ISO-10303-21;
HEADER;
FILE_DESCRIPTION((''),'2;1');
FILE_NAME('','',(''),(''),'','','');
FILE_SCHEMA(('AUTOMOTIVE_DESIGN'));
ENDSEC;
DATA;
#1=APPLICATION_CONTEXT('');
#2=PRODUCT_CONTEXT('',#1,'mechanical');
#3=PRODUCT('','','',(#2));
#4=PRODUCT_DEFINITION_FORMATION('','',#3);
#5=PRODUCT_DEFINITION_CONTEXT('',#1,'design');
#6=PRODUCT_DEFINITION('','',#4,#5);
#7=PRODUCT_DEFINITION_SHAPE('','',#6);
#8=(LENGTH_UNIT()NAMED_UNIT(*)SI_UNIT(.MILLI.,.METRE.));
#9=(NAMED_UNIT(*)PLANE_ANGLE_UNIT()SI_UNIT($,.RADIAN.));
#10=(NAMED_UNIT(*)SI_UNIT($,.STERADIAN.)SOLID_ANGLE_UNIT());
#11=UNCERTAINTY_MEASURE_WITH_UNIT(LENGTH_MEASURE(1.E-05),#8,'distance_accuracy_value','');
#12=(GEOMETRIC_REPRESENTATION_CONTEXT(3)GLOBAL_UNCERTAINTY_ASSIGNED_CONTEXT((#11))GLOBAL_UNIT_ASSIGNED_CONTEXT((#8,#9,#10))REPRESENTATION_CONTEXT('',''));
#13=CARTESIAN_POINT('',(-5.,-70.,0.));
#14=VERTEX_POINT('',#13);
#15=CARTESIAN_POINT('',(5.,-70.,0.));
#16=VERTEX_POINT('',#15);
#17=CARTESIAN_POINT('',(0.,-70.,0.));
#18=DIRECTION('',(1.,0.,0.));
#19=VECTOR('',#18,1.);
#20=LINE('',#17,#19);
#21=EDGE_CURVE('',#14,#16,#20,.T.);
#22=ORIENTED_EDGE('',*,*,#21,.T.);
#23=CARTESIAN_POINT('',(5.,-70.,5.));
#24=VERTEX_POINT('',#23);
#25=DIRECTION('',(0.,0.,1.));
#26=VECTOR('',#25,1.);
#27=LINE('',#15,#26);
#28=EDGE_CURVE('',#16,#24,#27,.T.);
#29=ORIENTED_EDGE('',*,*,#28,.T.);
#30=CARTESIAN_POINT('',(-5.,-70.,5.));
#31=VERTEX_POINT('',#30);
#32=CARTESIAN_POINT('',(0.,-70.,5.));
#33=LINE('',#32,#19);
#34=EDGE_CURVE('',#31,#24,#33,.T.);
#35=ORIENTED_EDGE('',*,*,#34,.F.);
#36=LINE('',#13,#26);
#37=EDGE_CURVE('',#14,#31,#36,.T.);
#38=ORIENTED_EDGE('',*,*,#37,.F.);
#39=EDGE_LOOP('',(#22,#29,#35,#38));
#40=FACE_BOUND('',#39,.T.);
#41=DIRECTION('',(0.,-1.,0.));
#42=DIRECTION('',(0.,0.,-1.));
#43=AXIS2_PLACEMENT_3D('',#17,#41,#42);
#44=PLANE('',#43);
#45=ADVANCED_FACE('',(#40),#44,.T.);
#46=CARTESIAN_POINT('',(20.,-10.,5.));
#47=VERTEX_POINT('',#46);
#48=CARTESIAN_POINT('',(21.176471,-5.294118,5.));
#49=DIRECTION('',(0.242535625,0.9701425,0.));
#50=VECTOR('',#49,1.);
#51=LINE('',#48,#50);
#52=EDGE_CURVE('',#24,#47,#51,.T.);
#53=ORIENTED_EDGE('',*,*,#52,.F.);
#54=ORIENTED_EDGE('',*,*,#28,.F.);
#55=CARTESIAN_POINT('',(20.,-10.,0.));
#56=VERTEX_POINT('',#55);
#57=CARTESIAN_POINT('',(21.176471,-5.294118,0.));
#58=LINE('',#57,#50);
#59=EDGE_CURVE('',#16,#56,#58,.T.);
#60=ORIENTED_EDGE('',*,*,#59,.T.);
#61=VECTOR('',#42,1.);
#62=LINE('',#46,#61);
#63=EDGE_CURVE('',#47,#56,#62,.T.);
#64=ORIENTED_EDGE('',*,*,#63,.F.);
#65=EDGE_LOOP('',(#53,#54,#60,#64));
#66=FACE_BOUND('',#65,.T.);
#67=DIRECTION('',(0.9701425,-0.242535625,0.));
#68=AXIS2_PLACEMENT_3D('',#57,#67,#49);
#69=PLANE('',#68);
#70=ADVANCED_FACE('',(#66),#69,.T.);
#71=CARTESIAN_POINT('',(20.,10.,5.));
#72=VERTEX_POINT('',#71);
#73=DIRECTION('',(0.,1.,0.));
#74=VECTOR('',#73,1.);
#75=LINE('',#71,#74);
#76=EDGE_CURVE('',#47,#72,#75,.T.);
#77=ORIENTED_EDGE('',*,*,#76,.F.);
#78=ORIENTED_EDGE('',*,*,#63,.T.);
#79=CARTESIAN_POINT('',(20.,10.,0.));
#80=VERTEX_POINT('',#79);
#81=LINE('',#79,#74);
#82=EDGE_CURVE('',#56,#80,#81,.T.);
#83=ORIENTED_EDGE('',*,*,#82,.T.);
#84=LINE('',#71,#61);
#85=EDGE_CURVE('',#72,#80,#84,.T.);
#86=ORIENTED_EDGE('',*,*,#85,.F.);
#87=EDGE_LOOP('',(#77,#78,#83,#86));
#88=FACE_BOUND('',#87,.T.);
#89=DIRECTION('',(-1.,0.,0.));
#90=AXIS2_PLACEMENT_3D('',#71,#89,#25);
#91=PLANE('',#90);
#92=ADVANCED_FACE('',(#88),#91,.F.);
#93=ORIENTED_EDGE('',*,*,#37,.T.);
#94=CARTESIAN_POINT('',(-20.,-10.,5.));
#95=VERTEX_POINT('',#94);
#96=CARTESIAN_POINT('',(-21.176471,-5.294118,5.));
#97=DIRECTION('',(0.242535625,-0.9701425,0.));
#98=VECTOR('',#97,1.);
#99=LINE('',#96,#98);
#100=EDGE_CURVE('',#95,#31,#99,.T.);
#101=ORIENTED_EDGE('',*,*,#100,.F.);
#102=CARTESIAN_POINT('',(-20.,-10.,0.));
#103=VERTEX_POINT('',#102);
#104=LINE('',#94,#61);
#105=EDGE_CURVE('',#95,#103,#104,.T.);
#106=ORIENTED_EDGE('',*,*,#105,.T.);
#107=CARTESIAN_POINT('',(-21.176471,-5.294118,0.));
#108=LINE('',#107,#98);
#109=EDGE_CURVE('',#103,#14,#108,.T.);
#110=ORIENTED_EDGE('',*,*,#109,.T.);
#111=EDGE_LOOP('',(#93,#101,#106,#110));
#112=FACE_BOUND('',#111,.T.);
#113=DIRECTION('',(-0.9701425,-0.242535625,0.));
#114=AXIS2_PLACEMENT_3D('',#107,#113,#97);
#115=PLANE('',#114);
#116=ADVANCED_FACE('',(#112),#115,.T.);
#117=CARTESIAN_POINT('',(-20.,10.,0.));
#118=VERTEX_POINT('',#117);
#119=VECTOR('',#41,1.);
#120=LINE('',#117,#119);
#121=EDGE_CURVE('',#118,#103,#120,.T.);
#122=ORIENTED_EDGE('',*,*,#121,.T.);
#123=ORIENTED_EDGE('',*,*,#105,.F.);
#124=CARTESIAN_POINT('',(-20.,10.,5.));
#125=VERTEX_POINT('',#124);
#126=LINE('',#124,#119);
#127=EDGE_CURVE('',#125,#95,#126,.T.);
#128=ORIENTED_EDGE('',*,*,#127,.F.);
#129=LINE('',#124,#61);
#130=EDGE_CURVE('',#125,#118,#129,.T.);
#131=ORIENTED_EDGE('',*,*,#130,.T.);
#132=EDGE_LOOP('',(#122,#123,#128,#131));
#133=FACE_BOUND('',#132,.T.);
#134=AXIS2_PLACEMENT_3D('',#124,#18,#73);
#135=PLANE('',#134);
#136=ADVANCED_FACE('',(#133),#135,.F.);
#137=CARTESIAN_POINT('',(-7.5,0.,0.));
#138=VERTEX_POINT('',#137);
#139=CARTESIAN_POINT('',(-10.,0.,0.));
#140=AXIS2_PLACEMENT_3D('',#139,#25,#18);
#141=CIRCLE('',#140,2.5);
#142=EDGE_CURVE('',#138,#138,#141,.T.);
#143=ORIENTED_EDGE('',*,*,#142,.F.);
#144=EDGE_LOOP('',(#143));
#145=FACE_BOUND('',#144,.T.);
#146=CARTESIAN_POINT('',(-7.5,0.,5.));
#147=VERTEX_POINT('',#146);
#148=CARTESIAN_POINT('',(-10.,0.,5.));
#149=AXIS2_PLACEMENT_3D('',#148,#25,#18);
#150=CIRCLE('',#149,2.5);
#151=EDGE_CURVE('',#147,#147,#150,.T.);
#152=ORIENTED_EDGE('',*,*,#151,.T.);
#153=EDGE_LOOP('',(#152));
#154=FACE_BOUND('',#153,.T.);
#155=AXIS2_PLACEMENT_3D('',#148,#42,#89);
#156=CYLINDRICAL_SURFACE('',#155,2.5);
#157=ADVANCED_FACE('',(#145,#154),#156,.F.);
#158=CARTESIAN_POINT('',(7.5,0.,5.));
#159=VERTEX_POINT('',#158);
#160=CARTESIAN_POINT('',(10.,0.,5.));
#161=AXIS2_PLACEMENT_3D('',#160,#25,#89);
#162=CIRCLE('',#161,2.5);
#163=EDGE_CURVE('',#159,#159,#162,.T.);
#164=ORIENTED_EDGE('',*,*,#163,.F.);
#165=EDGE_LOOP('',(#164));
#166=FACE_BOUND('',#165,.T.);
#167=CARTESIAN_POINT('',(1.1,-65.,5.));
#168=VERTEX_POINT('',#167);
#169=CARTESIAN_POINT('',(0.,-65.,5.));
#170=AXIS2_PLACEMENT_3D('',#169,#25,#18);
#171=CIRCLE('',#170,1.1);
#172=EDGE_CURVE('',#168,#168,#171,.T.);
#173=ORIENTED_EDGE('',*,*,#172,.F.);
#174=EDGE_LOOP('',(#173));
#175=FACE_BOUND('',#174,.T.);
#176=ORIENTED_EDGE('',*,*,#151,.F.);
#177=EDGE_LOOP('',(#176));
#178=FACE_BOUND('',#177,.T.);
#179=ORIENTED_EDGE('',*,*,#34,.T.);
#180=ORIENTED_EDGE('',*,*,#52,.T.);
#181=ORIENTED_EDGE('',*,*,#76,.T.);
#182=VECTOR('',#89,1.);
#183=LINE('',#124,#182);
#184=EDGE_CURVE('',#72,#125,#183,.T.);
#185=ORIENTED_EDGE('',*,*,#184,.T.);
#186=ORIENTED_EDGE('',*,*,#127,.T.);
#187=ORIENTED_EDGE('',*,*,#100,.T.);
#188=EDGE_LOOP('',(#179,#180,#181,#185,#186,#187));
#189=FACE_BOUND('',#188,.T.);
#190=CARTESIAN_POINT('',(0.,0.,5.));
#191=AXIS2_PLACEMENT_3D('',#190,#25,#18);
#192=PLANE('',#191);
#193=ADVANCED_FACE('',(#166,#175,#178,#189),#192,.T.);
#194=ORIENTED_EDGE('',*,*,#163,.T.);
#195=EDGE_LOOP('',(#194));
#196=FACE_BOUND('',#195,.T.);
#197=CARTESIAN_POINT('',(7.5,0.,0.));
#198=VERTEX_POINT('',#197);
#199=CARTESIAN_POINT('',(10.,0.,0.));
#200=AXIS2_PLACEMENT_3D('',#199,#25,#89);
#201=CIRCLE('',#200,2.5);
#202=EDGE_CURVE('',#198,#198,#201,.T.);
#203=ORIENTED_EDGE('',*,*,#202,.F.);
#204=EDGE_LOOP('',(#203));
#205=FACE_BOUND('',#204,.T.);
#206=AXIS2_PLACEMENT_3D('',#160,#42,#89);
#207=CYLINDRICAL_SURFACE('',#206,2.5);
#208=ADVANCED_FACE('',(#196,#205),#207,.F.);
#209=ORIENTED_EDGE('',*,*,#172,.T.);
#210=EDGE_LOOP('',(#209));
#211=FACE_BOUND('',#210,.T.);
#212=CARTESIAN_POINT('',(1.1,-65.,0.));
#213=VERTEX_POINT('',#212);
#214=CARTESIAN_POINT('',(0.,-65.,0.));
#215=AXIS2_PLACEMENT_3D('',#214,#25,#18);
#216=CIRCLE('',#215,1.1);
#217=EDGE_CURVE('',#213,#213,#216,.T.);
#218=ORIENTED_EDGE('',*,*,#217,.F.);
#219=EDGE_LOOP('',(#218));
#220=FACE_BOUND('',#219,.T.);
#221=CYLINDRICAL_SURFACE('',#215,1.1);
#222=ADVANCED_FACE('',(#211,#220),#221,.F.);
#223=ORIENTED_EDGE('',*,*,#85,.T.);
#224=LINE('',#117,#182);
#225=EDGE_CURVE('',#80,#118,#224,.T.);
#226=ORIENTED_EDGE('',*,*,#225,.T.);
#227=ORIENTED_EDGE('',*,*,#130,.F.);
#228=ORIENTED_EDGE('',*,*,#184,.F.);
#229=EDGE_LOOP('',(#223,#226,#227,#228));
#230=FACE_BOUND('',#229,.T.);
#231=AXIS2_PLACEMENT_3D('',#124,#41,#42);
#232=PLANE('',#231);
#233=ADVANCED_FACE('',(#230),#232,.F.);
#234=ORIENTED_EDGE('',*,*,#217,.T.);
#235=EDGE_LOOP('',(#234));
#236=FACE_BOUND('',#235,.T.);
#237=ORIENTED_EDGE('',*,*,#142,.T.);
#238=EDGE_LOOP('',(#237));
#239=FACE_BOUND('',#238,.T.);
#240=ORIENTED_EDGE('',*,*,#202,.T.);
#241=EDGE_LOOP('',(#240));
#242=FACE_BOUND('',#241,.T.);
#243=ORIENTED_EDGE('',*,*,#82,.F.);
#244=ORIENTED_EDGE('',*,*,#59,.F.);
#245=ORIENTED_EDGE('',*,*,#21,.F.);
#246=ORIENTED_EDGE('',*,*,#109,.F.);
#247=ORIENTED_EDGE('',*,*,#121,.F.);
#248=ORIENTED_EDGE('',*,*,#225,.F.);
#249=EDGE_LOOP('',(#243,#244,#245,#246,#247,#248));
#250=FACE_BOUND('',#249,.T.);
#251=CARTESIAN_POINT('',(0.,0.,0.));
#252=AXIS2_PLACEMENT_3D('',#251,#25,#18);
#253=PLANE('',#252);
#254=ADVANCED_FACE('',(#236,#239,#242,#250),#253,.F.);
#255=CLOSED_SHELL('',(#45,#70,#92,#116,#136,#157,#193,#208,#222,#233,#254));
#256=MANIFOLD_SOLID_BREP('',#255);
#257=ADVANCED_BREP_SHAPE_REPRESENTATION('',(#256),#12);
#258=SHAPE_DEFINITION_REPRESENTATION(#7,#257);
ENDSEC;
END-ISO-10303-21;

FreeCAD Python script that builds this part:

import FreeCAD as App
import Part
import Sketcher
from FreeCAD import Vector
Q = App.Units.Quantity

doc = App.newDocument("Part")
body = doc.addObject("PartDesign::Body", "Body")

# Sketch on XY plane
sketch1 = body.newObject("Sketcher::SketchObject", "Sketch")
sketch1.AttachmentSupport = (doc.getObject("XY_Plane"), [""])
sketch1.MapMode = "FlatFace"
sketch1.addGeometry([
    Part.LineSegment(Vector(-20, 10, 0), Vector(-20, -10, 0)),  # 0
    Part.LineSegment(Vector(-20, -10, 0), Vector(20, -10, 0)),  # 1
    Part.LineSegment(Vector(20, -10, 0), Vector(20, 10, 0)),  # 2
    Part.LineSegment(Vector(20, 10, 0), Vector(-20, 10, 0)),  # 3
    Part.Circle(Vector(-10, 0, 0), Vector(0, 0, 1), 2.5),  # 4
    Part.Circle(Vector(10, 0, 0), Vector(0, 0, 1), 2.5),  # 5
], False)
sketch1.addConstraint([
    Sketcher.Constraint("Coincident", 0, 2, 1, 1),
    Sketcher.Constraint("Coincident", 1, 2, 2, 1),
    Sketcher.Constraint("Coincident", 2, 2, 3, 1),
    Sketcher.Constraint("Coincident", 3, 2, 0, 1),
    Sketcher.Constraint("Vertical", 0),
    Sketcher.Constraint("Horizontal", 1),
    Sketcher.Constraint("Vertical", 2),
    Sketcher.Constraint("Horizontal", 3),
    Sketcher.Constraint("Equal", 4, 5),
    Sketcher.Constraint("Symmetric", 4, 3, 5, 3, -1, 1),
    Sketcher.Constraint("Symmetric", 0, 2, 2, 2, -1, 1),
    Sketcher.Constraint("PointOnObject", 4, 3, -1),
    Sketcher.Constraint("Diameter", 4, Q("5 mm")),
    Sketcher.Constraint("DistanceX", 1, 1, 1, 2, Q("40 mm")),
    Sketcher.Constraint("DistanceY", 0, 2, 0, 1, Q("20 mm")),
    Sketcher.Constraint("DistanceX", 4, 3, -1, 1, Q("10 mm")),
])
pad1 = body.newObject("PartDesign::Pad", "Pad")
pad1.Profile = sketch1
pad1.Length = 5

# Sketch on XY plane
sketch2 = body.newObject("Sketcher::SketchObject", "Sketch001")
sketch2.AttachmentSupport = (doc.getObject("XY_Plane"), [""])
sketch2.MapMode = "FlatFace"
sketch2.AttachmentOffset = App.Placement(Vector(0, 0, 5), App.Rotation())
sketch2.addGeometry([
    Part.LineSegment(Vector(5, -70, 0), Vector(20, -10, 0)),  # 0
    Part.LineSegment(Vector(20, -10, 0), Vector(-20, -10, 0)),  # 1
    Part.LineSegment(Vector(-20, -10, 0), Vector(-5, -70, 0)),  # 2
    Part.LineSegment(Vector(-5, -70, 0), Vector(5, -70, 0)),  # 3
    Part.Circle(Vector(0, -65, 0), Vector(0, 0, 1), 1.1),  # 4
], False)
sketch2.addConstraint([
    Sketcher.Constraint("Coincident", 0, 2, 1, 1),
    Sketcher.Constraint("Coincident", 1, 2, 2, 1),
    Sketcher.Constraint("Coincident", 2, 2, 3, 1),
    Sketcher.Constraint("Coincident", 3, 2, 0, 1),
    Sketcher.Constraint("Horizontal", 1),
    Sketcher.Constraint("Horizontal", 3),
    Sketcher.Constraint("PointOnObject", 4, 3, -2),
    Sketcher.Constraint("Equal", 0, 2),
    Sketcher.Constraint("Diameter", 4, Q("2.2 mm")),
    Sketcher.Constraint("DistanceX", 1, 2, 1, 1, Q("40 mm")),
    Sketcher.Constraint("DistanceX", 3, 1, 3, 2, Q("10 mm")),
    Sketcher.Constraint("DistanceY", 4, 3, -1, 1, Q("65 mm")),
    Sketcher.Constraint("DistanceX", -1, 1, 0, 2, Q("20 mm")),
    Sketcher.Constraint("DistanceY", 0, 2, -1, 1, Q("10 mm")),
    Sketcher.Constraint("DistanceY", 2, 2, -1, 1, Q("70 mm")),
])
pad2 = body.newObject("PartDesign::Pad", "Pad001")
pad2.Profile = sketch2
pad2.Length = 5
pad2.Reversed = True

doc.recompute()
